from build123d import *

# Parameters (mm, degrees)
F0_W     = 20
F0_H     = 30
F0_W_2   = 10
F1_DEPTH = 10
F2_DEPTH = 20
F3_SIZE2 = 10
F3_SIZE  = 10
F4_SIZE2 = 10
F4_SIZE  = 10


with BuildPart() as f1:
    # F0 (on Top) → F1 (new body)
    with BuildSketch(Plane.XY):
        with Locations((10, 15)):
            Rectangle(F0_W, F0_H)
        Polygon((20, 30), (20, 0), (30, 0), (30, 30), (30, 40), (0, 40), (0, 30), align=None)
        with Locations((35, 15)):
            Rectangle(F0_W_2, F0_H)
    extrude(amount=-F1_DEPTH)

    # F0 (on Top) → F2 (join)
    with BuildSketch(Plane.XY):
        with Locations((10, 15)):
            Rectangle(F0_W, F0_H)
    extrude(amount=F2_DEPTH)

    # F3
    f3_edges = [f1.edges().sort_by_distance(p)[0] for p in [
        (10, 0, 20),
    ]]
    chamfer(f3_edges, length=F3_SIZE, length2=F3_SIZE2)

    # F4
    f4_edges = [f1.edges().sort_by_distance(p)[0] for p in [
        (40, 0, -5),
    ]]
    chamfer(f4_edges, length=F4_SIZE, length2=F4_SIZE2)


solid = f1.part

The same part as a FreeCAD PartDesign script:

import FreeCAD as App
import Part
import Sketcher
Q = App.Units.Quantity


def edges_at(feature, points):
    """Names of the edges that pass closest to the given points."""
    edges = feature.Shape.Edges
    near = lambda p: min(range(len(edges)), key=lambda i: edges[i].distToShape(Part.Vertex(*p))[0])
    return sorted({f"Edge{near(p) + 1}" for p in points})

doc = App.newDocument("Part")
body = doc.addObject("PartDesign::Body", "Body")

sketch1 = body.newObject("Sketcher::SketchObject", "Sketch")
sketch1.AttachmentSupport = (doc.getObject("XY_Plane"), [""])
sketch1.MapMode = "FlatFace"
sketch1.addGeometry(Part.LineSegment(App.Vector(0, 0, 0), App.Vector(40, 0, 0)), False)
sketch1.addGeometry(Part.LineSegment(App.Vector(40, 0, 0), App.Vector(40, 30, 0)), False)
sketch1.addGeometry(Part.LineSegment(App.Vector(40, 30, 0), App.Vector(30, 30, 0)), False)
sketch1.addGeometry(Part.LineSegment(App.Vector(30, 30, 0), App.Vector(30, 40, 0)), False)
sketch1.addGeometry(Part.LineSegment(App.Vector(30, 40, 0), App.Vector(0, 40, 0)), False)
sketch1.addGeometry(Part.LineSegment(App.Vector(0, 40, 0), App.Vector(0, 0, 0)), False)
sketch1.addConstraint(Sketcher.Constraint("Coincident", 0, 2, 1, 1))
sketch1.addConstraint(Sketcher.Constraint("Coincident", 1, 2, 2, 1))
sketch1.addConstraint(Sketcher.Constraint("Coincident", 2, 2, 3, 1))
sketch1.addConstraint(Sketcher.Constraint("Coincident", 3, 2, 4, 1))
sketch1.addConstraint(Sketcher.Constraint("Coincident", 4, 2, 5, 1))
sketch1.addConstraint(Sketcher.Constraint("Coincident", 5, 2, 0, 1))
sketch1.addConstraint(Sketcher.Constraint("Horizontal", 0))
sketch1.addConstraint(Sketcher.Constraint("Vertical", 1))
sketch1.addConstraint(Sketcher.Constraint("Horizontal", 2))
sketch1.addConstraint(Sketcher.Constraint("Vertical", 3))
sketch1.addConstraint(Sketcher.Constraint("Horizontal", 4))
sketch1.addConstraint(Sketcher.Constraint("Vertical", 5))
sketch1.addConstraint(Sketcher.Constraint("Coincident", 5, 2, -1, 1))
sketch1.addConstraint(Sketcher.Constraint("Equal", 4, 1))
sketch1.addConstraint(Sketcher.Constraint("Equal", 2, 3))
sketch1.addConstraint(Sketcher.Constraint("DistanceX", 0, 1, 0, 2, Q("40 mm")))
sketch1.addConstraint(Sketcher.Constraint("DistanceX", 2, 2, 2, 1, Q("10 mm")))
pad1 = body.newObject("PartDesign::Pad", "Pad")
pad1.Profile = sketch1
pad1.Length = 10
pad1.Reversed = True

sketch2 = body.newObject("Sketcher::SketchObject", "Sketch001")
sketch2.AttachmentSupport = (doc.getObject("XY_Plane"), [""])
sketch2.MapMode = "FlatFace"
sketch2.addGeometry(Part.LineSegment(App.Vector(0, 30, 0), App.Vector(0, 0, 0)), False)
sketch2.addGeometry(Part.LineSegment(App.Vector(0, 0, 0), App.Vector(20, 0, 0)), False)
sketch2.addGeometry(Part.LineSegment(App.Vector(20, 0, 0), App.Vector(20, 30, 0)), False)
sketch2.addGeometry(Part.LineSegment(App.Vector(20, 30, 0), App.Vector(0, 30, 0)), False)
sketch2.addConstraint(Sketcher.Constraint("Coincident", 0, 2, 1, 1))
sketch2.addConstraint(Sketcher.Constraint("Coincident", 1, 2, 2, 1))
sketch2.addConstraint(Sketcher.Constraint("Coincident", 2, 2, 3, 1))
sketch2.addConstraint(Sketcher.Constraint("Coincident", 3, 2, 0, 1))
sketch2.addConstraint(Sketcher.Constraint("Vertical", 0))
sketch2.addConstraint(Sketcher.Constraint("Horizontal", 1))
sketch2.addConstraint(Sketcher.Constraint("Vertical", 2))
sketch2.addConstraint(Sketcher.Constraint("Horizontal", 3))
sketch2.addConstraint(Sketcher.Constraint("Coincident", 0, 2, -1, 1))
sketch2.addConstraint(Sketcher.Constraint("DistanceX", 1, 1, 1, 2, Q("20 mm")))
sketch2.addConstraint(Sketcher.Constraint("DistanceY", 0, 2, 0, 1, Q("30 mm")))
pad2 = body.newObject("PartDesign::Pad", "Pad001")
pad2.Profile = sketch2
pad2.Length = 20
doc.recompute()

chamfer = body.newObject("PartDesign::Chamfer", "Chamfer")
chamfer.Base = (pad2, edges_at(pad2, [(10, 0, 20)]))
chamfer.ChamferType = "Two distances"
chamfer.Size = 10
chamfer.Size2 = 10
doc.recompute()

chamfer2 = body.newObject("PartDesign::Chamfer", "Chamfer001")
chamfer2.Base = (chamfer, edges_at(chamfer, [(40, 0, -5)]))
chamfer2.ChamferType = "Two distances"
chamfer2.Size = 10
chamfer2.Size2 = 10

doc.recompute()
